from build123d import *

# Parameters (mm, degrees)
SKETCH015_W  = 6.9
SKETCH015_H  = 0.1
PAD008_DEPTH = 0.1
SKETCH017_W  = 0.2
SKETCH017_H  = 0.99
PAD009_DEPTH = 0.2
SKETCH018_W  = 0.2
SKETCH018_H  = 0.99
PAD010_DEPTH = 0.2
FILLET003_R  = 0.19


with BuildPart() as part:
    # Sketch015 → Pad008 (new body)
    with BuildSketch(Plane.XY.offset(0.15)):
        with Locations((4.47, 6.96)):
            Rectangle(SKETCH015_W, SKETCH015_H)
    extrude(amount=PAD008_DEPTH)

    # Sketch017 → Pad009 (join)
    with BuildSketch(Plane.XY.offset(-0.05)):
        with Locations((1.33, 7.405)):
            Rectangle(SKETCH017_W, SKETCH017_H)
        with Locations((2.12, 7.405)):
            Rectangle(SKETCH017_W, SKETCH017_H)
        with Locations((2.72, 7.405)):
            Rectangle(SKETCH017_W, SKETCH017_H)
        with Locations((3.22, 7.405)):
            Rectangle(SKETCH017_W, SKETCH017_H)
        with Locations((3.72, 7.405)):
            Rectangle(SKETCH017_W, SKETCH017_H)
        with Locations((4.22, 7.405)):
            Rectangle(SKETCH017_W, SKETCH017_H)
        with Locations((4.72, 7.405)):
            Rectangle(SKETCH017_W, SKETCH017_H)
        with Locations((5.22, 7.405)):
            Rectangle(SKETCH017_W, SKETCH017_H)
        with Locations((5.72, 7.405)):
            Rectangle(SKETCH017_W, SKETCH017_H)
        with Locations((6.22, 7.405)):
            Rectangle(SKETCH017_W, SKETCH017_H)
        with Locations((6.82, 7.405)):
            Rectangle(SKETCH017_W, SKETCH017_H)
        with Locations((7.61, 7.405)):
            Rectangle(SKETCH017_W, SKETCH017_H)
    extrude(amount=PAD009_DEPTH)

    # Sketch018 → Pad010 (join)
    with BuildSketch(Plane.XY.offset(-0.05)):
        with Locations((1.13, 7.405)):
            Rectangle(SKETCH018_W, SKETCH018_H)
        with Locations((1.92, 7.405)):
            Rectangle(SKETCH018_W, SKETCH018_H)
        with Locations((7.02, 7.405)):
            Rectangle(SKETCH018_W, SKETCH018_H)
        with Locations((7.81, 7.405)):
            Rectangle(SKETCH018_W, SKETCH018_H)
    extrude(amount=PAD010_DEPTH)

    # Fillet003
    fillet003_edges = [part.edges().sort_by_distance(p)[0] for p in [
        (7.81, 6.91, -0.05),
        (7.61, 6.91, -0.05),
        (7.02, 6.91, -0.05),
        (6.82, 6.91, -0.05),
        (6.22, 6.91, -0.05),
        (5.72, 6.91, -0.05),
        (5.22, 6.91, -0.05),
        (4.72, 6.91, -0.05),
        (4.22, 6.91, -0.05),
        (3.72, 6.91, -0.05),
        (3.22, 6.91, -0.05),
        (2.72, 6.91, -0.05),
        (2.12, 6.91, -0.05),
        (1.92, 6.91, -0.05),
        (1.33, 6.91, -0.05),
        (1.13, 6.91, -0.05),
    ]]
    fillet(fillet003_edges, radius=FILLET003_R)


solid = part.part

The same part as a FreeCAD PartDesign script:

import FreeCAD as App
import Part
import Sketcher
from FreeCAD import Vector
Q = App.Units.Quantity


def edges_at(feature, points):
    """Names of the edges that pass closest to the given points."""
    edges = feature.Shape.Edges
    near = lambda p: min(range(len(edges)), key=lambda i: edges[i].distToShape(Part.Vertex(*p))[0])
    return sorted({f"Edge{near(p) + 1}" for p in points})

doc = App.newDocument("Part")
body = doc.addObject("PartDesign::Body", "Body")

sketch1 = body.newObject("Sketcher::SketchObject", "Sketch")
sketch1.AttachmentSupport = (doc.getObject("XY_Plane"), [""])
sketch1.MapMode = "FlatFace"
sketch1.AttachmentOffset = App.Placement(Vector(0, 0, 0.15), App.Rotation())
sketch1.addGeometry(Part.LineSegment(Vector(1.02, 7.01, 0), Vector(1.02, 6.91, 0)), False)
sketch1.addGeometry(Part.LineSegment(Vector(1.02, 6.91, 0), Vector(7.92, 6.91, 0)), False)
sketch1.addGeometry(Part.LineSegment(Vector(7.92, 6.91, 0), Vector(7.92, 7.01, 0)), False)
sketch1.addGeometry(Part.LineSegment(Vector(7.92, 7.01, 0), Vector(1.02, 7.01, 0)), False)
sketch1.addConstraint(Sketcher.Constraint("Coincident", 0, 2, 1, 1))
sketch1.addConstraint(Sketcher.Constraint("Coincident", 1, 2, 2, 1))
sketch1.addConstraint(Sketcher.Constraint("Coincident", 2, 2, 3, 1))
sketch1.addConstraint(Sketcher.Constraint("Coincident", 3, 2, 0, 1))
sketch1.addConstraint(Sketcher.Constraint("Vertical", 0))
sketch1.addConstraint(Sketcher.Constraint("Horizontal", 1))
sketch1.addConstraint(Sketcher.Constraint("Vertical", 2))
sketch1.addConstraint(Sketcher.Constraint("Horizontal", 3))
sketch1.addConstraint(Sketcher.Constraint("DistanceX", 1, 1, 1, 2, Q("6.9 mm")))
sketch1.addConstraint(Sketcher.Constraint("DistanceY", 0, 2, 0, 1, Q("0.1 mm")))
sketch1.addConstraint(Sketcher.Constraint("DistanceX", -1, 1, 0, 2, Q("1.02 mm")))
sketch1.addConstraint(Sketcher.Constraint("DistanceY", -1, 1, 0, 2, Q("6.91 mm")))
pad1 = body.newObject("PartDesign::Pad", "Pad")
pad1.Profile = sketch1
pad1.Length = 0.1

sketch2 = body.newObject("Sketcher::SketchObject", "Sketch001")
sketch2.AttachmentSupport = (doc.getObject("XY_Plane"), [""])
sketch2.MapMode = "FlatFace"
sketch2.AttachmentOffset = App.Placement(Vector(0, 0, -0.05), App.Rotation())
sketch2.addGeometry(Part.LineSegment(Vector(1.23, 7.9, 0), Vector(1.23, 6.91, 0)), False)
sketch2.addGeometry(Part.LineSegment(Vector(1.23, 6.91, 0), Vector(1.43, 6.91, 0)), False)
sketch2.addGeometry(Part.LineSegment(Vector(1.43, 6.91, 0), Vector(1.43, 7.9, 0)), False)
sketch2.addGeometry(Part.LineSegment(Vector(1.43, 7.9, 0), Vector(1.23, 7.9, 0)), False)
sketch2.addGeometry(Part.LineSegment(Vector(2.02, 7.9, 0), Vector(2.02, 6.91, 0)), False)
sketch2.addGeometry(Part.LineSegment(Vector(2.02, 6.91, 0), Vector(2.22, 6.91, 0)), False)
sketch2.addGeometry(Part.LineSegment(Vector(2.22, 6.91, 0), Vector(2.22, 7.9, 0)), False)
sketch2.addGeometry(Part.LineSegment(Vector(2.22, 7.9, 0), Vector(2.02, 7.9, 0)), False)
sketch2.addGeometry(Part.LineSegment(Vector(2.62, 7.9, 0), Vector(2.62, 6.91, 0)), False)
sketch2.addGeometry(Part.LineSegment(Vector(2.62, 6.91, 0), Vector(2.82, 6.91, 0)), False)
sketch2.addGeometry(Part.LineSegment(Vector(2.82, 6.91, 0), Vector(2.82, 7.9, 0)), False)
sketch2.addGeometry(Part.LineSegment(Vector(2.82, 7.9, 0), Vector(2.62, 7.9, 0)), False)
sketch2.addGeometry(Part.LineSegment(Vector(3.12, 7.9, 0), Vector(3.12, 6.91, 0)), False)
sketch2.addGeometry(Part.LineSegment(Vector(3.12, 6.91, 0), Vector(3.32, 6.91, 0)), False)
sketch2.addGeometry(Part.LineSegment(Vector(3.32, 6.91, 0), Vector(3.32, 7.9, 0)), False)
sketch2.addGeometry(Part.LineSegment(Vector(3.32, 7.9, 0), Vector(3.12, 7.9, 0)), False)
sketch2.addGeometry(Part.LineSegment(Vector(3.62, 7.9, 0), Vector(3.62, 6.91, 0)), False)
sketch2.addGeometry(Part.LineSegment(Vector(3.62, 6.91, 0), Vector(3.82, 6.91, 0)), False)
sketch2.addGeometry(Part.LineSegment(Vector(3.82, 6.91, 0), Vector(3.82, 7.9, 0)), False)
sketch2.addGeometry(Part.LineSegment(Vector(3.82, 7.9, 0), Vector(3.62, 7.9, 0)), False)
sketch2.addGeometry(Part.LineSegment(Vector(4.12, 7.9, 0), Vector(4.12, 6.91, 0)), False)
sketch2.addGeometry(Part.LineSegment(Vector(4.12, 6.91, 0), Vector(4.32, 6.91, 0)), False)
sketch2.addGeometry(Part.LineSegment(Vector(4.32, 6.91, 0), Vector(4.32, 7.9, 0)), False)
sketch2.addGeometry(Part.LineSegment(Vector(4.32, 7.9, 0), Vector(4.12, 7.9, 0)), False)
sketch2.addGeometry(Part.LineSegment(Vector(4.62, 7.9, 0), Vector(4.62, 6.91, 0)), False)
sketch2.addGeometry(Part.LineSegment(Vector(4.62, 6.91, 0), Vector(4.82, 6.91, 0)), False)
sketch2.addGeometry(Part.LineSegment(Vector(4.82, 6.91, 0), Vector(4.82, 7.9, 0)), False)
sketch2.addGeometry(Part.LineSegment(Vector(4.82, 7.9, 0), Vector(4.62, 7.9, 0)), False)
sketch2.addGeometry(Part.LineSegment(Vector(5.12, 7.9, 0), Vector(5.12, 6.91, 0)), False)
sketch2.addGeometry(Part.LineSegment(Vector(5.12, 6.91, 0), Vector(5.32, 6.91, 0)), False)
sketch2.addGeometry(Part.LineSegment(Vector(5.32, 6.91, 0), Vector(5.32, 7.9, 0)), False)
sketch2.addGeometry(Part.LineSegment(Vector(5.32, 7.9, 0), Vector(5.12, 7.9, 0)), False)
sketch2.addGeometry(Part.LineSegment(Vector(5.62, 7.9, 0), Vector(5.62, 6.91, 0)), False)
sketch2.addGeometry(Part.LineSegment(Vector(5.62, 6.91, 0), Vector(5.82, 6.91, 0)), False)
sketch2.addGeometry(Part.LineSegment(Vector(5.82, 6.91, 0), Vector(5.82, 7.9, 0)), False)
sketch2.addGeometry(Part.LineSegment(Vector(5.82, 7.9, 0), Vector(5.62, 7.9, 0)), False)
sketch2.addGeometry(Part.LineSegment(Vector(6.12, 7.9, 0), Vector(6.12, 6.91, 0)), False)
sketch2.addGeometry(Part.LineSegment(Vector(6.12, 6.91, 0), Vector(6.32, 6.91, 0)), False)
sketch2.addGeometry(Part.LineSegment(Vector(6.32, 6.91, 0), Vector(6.32, 7.9, 0)), False)
sketch2.addGeometry(Part.LineSegment(Vector(6.32, 7.9, 0), Vector(6.12, 7.9, 0)), False)
sketch2.addGeometry(Part.LineSegment(Vector(6.72, 7.9, 0), Vector(6.72, 6.91, 0)), False)
sketch2.addGeometry(Part.LineSegment(Vector(6.72, 6.91, 0), Vector(6.92, 6.91, 0)), False)
sketch2.addGeometry(Part.LineSegment(Vector(6.92, 6.91, 0), Vector(6.92, 7.9, 0)), False)
sketch2.addGeometry(Part.LineSegment(Vector(6.92, 7.9, 0), Vector(6.72, 7.9, 0)), False)
sketch2.addGeometry(Part.LineSegment(Vector(7.51, 7.9, 0), Vector(7.51, 6.91, 0)), False)
sketch2.addGeometry(Part.LineSegment(Vector(7.51, 6.91, 0), Vector(7.71, 6.91, 0)), False)
sketch2.addGeometry(Part.LineSegment(Vector(7.71, 6.91, 0), Vector(7.71, 7.9, 0)), False)
sketch2.addGeometry(Part.LineSegment(Vector(7.71, 7.9, 0), Vector(7.51, 7.9, 0)), False)
sketch2.addConstraint(Sketcher.Constraint("Coincident", 0, 2, 1, 1))
sketch2.addConstraint(Sketcher.Constraint("Coincident", 1, 2, 2, 1))
sketch2.addConstraint(Sketcher.Constraint("Coincident", 2, 2, 3, 1))
sketch2.addConstraint(Sketcher.Constraint("Coincident", 3, 2, 0, 1))
sketch2.addConstraint(Sketcher.Constraint("Coincident", 4, 2, 5, 1))
sketch2.addConstraint(Sketcher.Constraint("Coincident", 5, 2, 6, 1))
sketch2.addConstraint(Sketcher.Constraint("Coincident", 6, 2, 7, 1))
sketch2.addConstraint(Sketcher.Constraint("Coincident", 7, 2, 4, 1))
sketch2.addConstraint(Sketcher.Constraint("Coincident", 8, 2, 9, 1))
sketch2.addConstraint(Sketcher.Constraint("Coincident", 9, 2, 10, 1))
sketch2.addConstraint(Sketcher.Constraint("Coincident", 10, 2, 11, 1))
sketch2.addConstraint(Sketcher.Constraint("Coincident", 11, 2, 8, 1))
sketch2.addConstraint(Sketcher.Constraint("Coincident", 12, 2, 13, 1))
sketch2.addConstraint(Sketcher.Constraint("Coincident", 13, 2, 14, 1))
sketch2.addConstraint(Sketcher.Constraint("Coincident", 14, 2, 15, 1))
sketch2.addConstraint(Sketcher.Constraint("Coincident", 15, 2, 12, 1))
sketch2.addConstraint(Sketcher.Constraint("Coincident", 16, 2, 17, 1))
sketch2.addConstraint(Sketcher.Constraint("Coincident", 17, 2, 18, 1))
sketch2.addConstraint(Sketcher.Constraint("Coincident", 18, 2, 19, 1))
sketch2.addConstraint(Sketcher.Constraint("Coincident", 19, 2, 16, 1))
sketch2.addConstraint(Sketcher.Constraint("Coincident", 20, 2, 21, 1))
sketch2.addConstraint(Sketcher.Constraint("Coincident", 21, 2, 22, 1))
sketch2.addConstraint(Sketcher.Constraint("Coincident", 22, 2, 23, 1))
sketch2.addConstraint(Sketcher.Constraint("Coincident", 23, 2, 20, 1))
sketch2.addConstraint(Sketcher.Constraint("Coincident", 24, 2, 25, 1))
sketch2.addConstraint(Sketcher.Constraint("Coincident", 25, 2, 26, 1))
sketch2.addConstraint(Sketcher.Constraint("Coincident", 26, 2, 27, 1))
sketch2.addConstraint(Sketcher.Constraint("Coincident", 27, 2, 24, 1))
sketch2.addConstraint(Sketcher.Constraint("Coincident", 28, 2, 29, 1))
sketch2.addConstraint(Sketcher.Constraint("Coincident", 29, 2, 30, 1))
sketch2.addConstraint(Sketcher.Constraint("Coincident", 30, 2, 31, 1))
sketch2.addConstraint(Sketcher.Constraint("Coincident", 31, 2, 28, 1))
sketch2.addConstraint(Sketcher.Constraint("Coincident", 32, 2, 33, 1))
sketch2.addConstraint(Sketcher.Constraint("Coincident", 33, 2, 34, 1))
sketch2.addConstraint(Sketcher.Constraint("Coincident", 34, 2, 35, 1))
sketch2.addConstraint(Sketcher.Constraint("Coincident", 35, 2, 32, 1))
sketch2.addConstraint(Sketcher.Constraint("Coincident", 36, 2, 37, 1))
sketch2.addConstraint(Sketcher.Constraint("Coincident", 37, 2, 38, 1))
sketch2.addConstraint(Sketcher.Constraint("Coincident", 38, 2, 39, 1))
sketch2.addConstraint(Sketcher.Constraint("Coincident", 39, 2, 36, 1))
sketch2.addConstraint(Sketcher.Constraint("Coincident", 40, 2, 41, 1))
sketch2.addConstraint(Sketcher.Constraint("Coincident", 41, 2, 42, 1))
sketch2.addConstraint(Sketcher.Constraint("Coincident", 42, 2, 43, 1))
sketch2.addConstraint(Sketcher.Constraint("Coincident", 43, 2, 40, 1))
sketch2.addConstraint(Sketcher.Constraint("Coincident", 44, 2, 45, 1))
sketch2.addConstraint(Sketcher.Constraint("Coincident", 45, 2, 46, 1))
sketch2.addConstraint(Sketcher.Constraint("Coincident", 46, 2, 47, 1))
sketch2.addConstraint(Sketcher.Constraint("Coincident", 47, 2, 44, 1))
sketch2.addConstraint(Sketcher.Constraint("Vertical", 0))
sketch2.addConstraint(Sketcher.Constraint("Horizontal", 1))
sketch2.addConstraint(Sketcher.Constraint("Vertical", 2))
sketch2.addConstraint(Sketcher.Constraint("Horizontal", 3))
sketch2.addConstraint(Sketcher.Constraint("Vertical", 4))
sketch2.addConstraint(Sketcher.Constraint("Horizontal", 5))
sketch2.addConstraint(Sketcher.Constraint("Vertical", 6))
sketch2.addConstraint(Sketcher.Constraint("Horizontal", 7))
sketch2.addConstraint(Sketcher.Constraint("Vertical", 8))
sketch2.addConstraint(Sketcher.Constraint("Horizontal", 9))
sketch2.addConstraint(Sketcher.Constraint("Vertical", 10))
sketch2.addConstraint(Sketcher.Constraint("Horizontal", 11))
sketch2.addConstraint(Sketcher.Constraint("Vertical", 12))
sketch2.addConstraint(Sketcher.Constraint("Horizontal", 13))
sketch2.addConstraint(Sketcher.Constraint("Vertical", 14))
sketch2.addConstraint(Sketcher.Constraint("Horizontal", 15))
sketch2.addConstraint(Sketcher.Constraint("Vertical", 16))
sketch2.addConstraint(Sketcher.Constraint("Horizontal", 17))
sketch2.addConstraint(Sketcher.Constraint("Vertical", 18))
sketch2.addConstraint(Sketcher.Constraint("Horizontal", 19))
sketch2.addConstraint(Sketcher.Constraint("Vertical", 20))
sketch2.addConstraint(Sketcher.Constraint("Horizontal", 21))
sketch2.addConstraint(Sketcher.Constraint("Vertical", 22))
sketch2.addConstraint(Sketcher.Constraint("Horizontal", 23))
sketch2.addConstraint(Sketcher.Constraint("Vertical", 24))
sketch2.addConstraint(Sketcher.Constraint("Horizontal", 25))
sketch2.addConstraint(Sketcher.Constraint("Vertical", 26))
sketch2.addConstraint(Sketcher.Constraint("Horizontal", 27))
sketch2.addConstraint(Sketcher.Constraint("Vertical", 28))
sketch2.addConstraint(Sketcher.Constraint("Horizontal", 29))
sketch2.addConstraint(Sketcher.Constraint("Vertical", 30))
sketch2.addConstraint(Sketcher.Constraint("Horizontal", 31))
sketch2.addConstraint(Sketcher.Constraint("Vertical", 32))
sketch2.addConstraint(Sketcher.Constraint("Horizontal", 33))
sketch2.addConstraint(Sketcher.Constraint("Vertical", 34))
sketch2.addConstraint(Sketcher.Constraint("Horizontal", 35))
sketch2.addConstraint(Sketcher.Constraint("Vertical", 36))
sketch2.addConstraint(Sketcher.Constraint("Horizontal", 37))
sketch2.addConstraint(Sketcher.Constraint("Vertical", 38))
sketch2.addConstraint(Sketcher.Constraint("Horizontal", 39))
sketch2.addConstraint(Sketcher.Constraint("Vertical", 40))
sketch2.addConstraint(Sketcher.Constraint("Horizontal", 41))
sketch2.addConstraint(Sketcher.Constraint("Vertical", 42))
sketch2.addConstraint(Sketcher.Constraint("Horizontal", 43))
sketch2.addConstraint(Sketcher.Constraint("Vertical", 44))
sketch2.addConstraint(Sketcher.Constraint("Horizontal", 45))
sketch2.addConstraint(Sketcher.Constraint("Vertical", 46))
sketch2.addConstraint(Sketcher.Constraint("Horizontal", 47))
sketch2.addConstraint(Sketcher.Constraint("Horizontal", 1, 2, 4, 2))
sketch2.addConstraint(Sketcher.Constraint("Horizontal", 3, 2, 6, 2))
sketch2.addConstraint(Sketcher.Constraint("Horizontal", 5, 2, 8, 2))
sketch2.addConstraint(Sketcher.Constraint("Horizontal", 7, 2, 10, 2))
sketch2.addConstraint(Sketcher.Constraint("Horizontal", 9, 2, 12, 2))
sketch2.addConstraint(Sketcher.Constraint("Horizontal", 11, 2, 14, 2))
sketch2.addConstraint(Sketcher.Constraint("Horizontal", 13, 2, 16, 2))
sketch2.addConstraint(Sketcher.Constraint("Horizontal", 15, 2, 18, 2))
sketch2.addConstraint(Sketcher.Constraint("Horizontal", 17, 2, 20, 2))
sketch2.addConstraint(Sketcher.Constraint("Horizontal", 19, 2, 22, 2))
sketch2.addConstraint(Sketcher.Constraint("Horizontal", 21, 2, 24, 2))
sketch2.addConstraint(Sketcher.Constraint("Horizontal", 23, 2, 26, 2))
sketch2.addConstraint(Sketcher.Constraint("Horizontal", 25, 2, 28, 2))
sketch2.addConstraint(Sketcher.Constraint("Horizontal", 27, 2, 30, 2))
sketch2.addConstraint(Sketcher.Constraint("Horizontal", 29, 2, 32, 2))
sketch2.addConstraint(Sketcher.Constraint("Horizontal", 31, 2, 34, 2))
sketch2.addConstraint(Sketcher.Constraint("Horizontal", 33, 2, 36, 2))
sketch2.addConstraint(Sketcher.Constraint("Horizontal", 35, 2, 38, 2))
sketch2.addConstraint(Sketcher.Constraint("Horizontal", 37, 2, 40, 2))
sketch2.addConstraint(Sketcher.Constraint("Horizontal", 39, 2, 42, 2))
sketch2.addConstraint(Sketcher.Constraint("Horizontal", 41, 2, 44, 2))
sketch2.addConstraint(Sketcher.Constraint("Horizontal", 43, 2, 46, 2))
sketch2.addConstraint(Sketcher.Constraint("Equal", 3, 5))
sketch2.addConstraint(Sketcher.Constraint("Equal", 7, 9))
sketch2.addConstraint(Sketcher.Constraint("Equal", 11, 13))
sketch2.addConstraint(Sketcher.Constraint("Equal", 15, 17))
sketch2.addConstraint(Sketcher.Constraint("Equal", 19, 21))
sketch2.addConstraint(Sketcher.Constraint("Equal", 23, 25))
sketch2.addConstraint(Sketcher.Constraint("Equal", 27, 29))
sketch2.addConstraint(Sketcher.Constraint("Equal", 31, 33))
sketch2.addConstraint(Sketcher.Constraint("Equal", 35, 37))
sketch2.addConstraint(Sketcher.Constraint("Equal", 39, 41))
sketch2.addConstraint(Sketcher.Constraint("Equal", 43, 45))
sketch2.addConstraint(Sketcher.Constraint("DistanceX", 1, 1, 1, 2, Q("0.2 mm")))
sketch2.addConstraint(Sketcher.Constraint("DistanceX", 8, 2, 16, 2, Q("1 mm")))
sketch2.addConstraint(Sketcher.Constraint("DistanceX", 12, 2, 20, 2, Q("1 mm")))
sketch2.addConstraint(Sketcher.Constraint("DistanceX", 16, 2, 24, 2, Q("1 mm")))
sketch2.addConstraint(Sketcher.Constraint("DistanceX", 20, 2, 28, 2, Q("1 mm")))
sketch2.addConstraint(Sketcher.Constraint("DistanceX", 24, 2, 32, 2, Q("1 mm")))
sketch2.addConstraint(Sketcher.Constraint("DistanceX", 28, 2, 36, 2, Q("1 mm")))
sketch2.addConstraint(Sketcher.Constraint("DistanceY", 0, 2, 0, 1, Q("0.99 mm")))
sketch2.addConstraint(Sketcher.Constraint("DistanceY", -1, 1, 2, 2, Q("7.9 mm")))
sketch2.addConstraint(Sketcher.Constraint("DistanceX", 5, 2, 8, 2, Q("0.4 mm")))
sketch2.addConstraint(Sketcher.Constraint("DistanceX", 9, 2, 12, 2, Q("0.3 mm")))
sketch2.addConstraint(Sketcher.Constraint("DistanceX", 37, 2, 40, 2, Q("0.4 mm")))
sketch2.addConstraint(Sketcher.Constraint("DistanceX", -1, 1, 0, 2, Q("1.23 mm")))
sketch2.addConstraint(Sketcher.Constraint("DistanceX", -1, 1, 4, 2, Q("2.02 mm")))
sketch2.addConstraint(Sketcher.Constraint("DistanceX", -1, 1, 44, 2, Q("7.51 mm")))
pad2 = body.newObject("PartDesign::Pad", "Pad001")
pad2.Profile = sketch2
pad2.Length = 0.2

sketch3 = body.newObject("Sketcher::SketchObject", "Sketch002")
sketch3.AttachmentSupport = (doc.getObject("XY_Plane"), [""])
sketch3.MapMode = "FlatFace"
sketch3.AttachmentOffset = App.Placement(Vector(0, 0, -0.05), App.Rotation())
sketch3.addGeometry(Part.LineSegment(Vector(1.03, 7.9, 0), Vector(1.03, 6.91, 0)), False)
sketch3.addGeometry(Part.LineSegment(Vector(1.03, 6.91, 0), Vector(1.23, 6.91, 0)), False)
sketch3.addGeometry(Part.LineSegment(Vector(1.23, 6.91, 0), Vector(1.23, 7.9, 0)), False)
sketch3.addGeometry(Part.LineSegment(Vector(1.23, 7.9, 0), Vector(1.03, 7.9, 0)), False)
sketch3.addGeometry(Part.LineSegment(Vector(1.82, 7.9, 0), Vector(1.82, 6.91, 0)), False)
sketch3.addGeometry(Part.LineSegment(Vector(1.82, 6.91, 0), Vector(2.02, 6.91, 0)), False)
sketch3.addGeometry(Part.LineSegment(Vector(2.02, 6.91, 0), Vector(2.02, 7.9, 0)), False)
sketch3.addGeometry(Part.LineSegment(Vector(2.02, 7.9, 0), Vector(1.82, 7.9, 0)), False)
sketch3.addGeometry(Part.LineSegment(Vector(6.92, 7.9, 0), Vector(6.92, 6.91, 0)), False)
sketch3.addGeometry(Part.LineSegment(Vector(6.92, 6.91, 0), Vector(7.12, 6.91, 0)), False)
sketch3.addGeometry(Part.LineSegment(Vector(7.12, 6.91, 0), Vector(7.12, 7.9, 0)), False)
sketch3.addGeometry(Part.LineSegment(Vector(7.12, 7.9, 0), Vector(6.92, 7.9, 0)), False)
sketch3.addGeometry(Part.LineSegment(Vector(7.71, 7.9, 0), Vector(7.71, 6.91, 0)), False)
sketch3.addGeometry(Part.LineSegment(Vector(7.71, 6.91, 0), Vector(7.91, 6.91, 0)), False)
sketch3.addGeometry(Part.LineSegment(Vector(7.91, 6.91, 0), Vector(7.91, 7.9, 0)), False)
sketch3.addGeometry(Part.LineSegment(Vector(7.91, 7.9, 0), Vector(7.71, 7.9, 0)), False)
sketch3.addConstraint(Sketcher.Constraint("Coincident", 0, 2, 1, 1))
sketch3.addConstraint(Sketcher.Constraint("Coincident", 1, 2, 2, 1))
sketch3.addConstraint(Sketcher.Constraint("Coincident", 2, 2, 3, 1))
sketch3.addConstraint(Sketcher.Constraint("Coincident", 3, 2, 0, 1))
sketch3.addConstraint(Sketcher.Constraint("Coincident", 4, 2, 5, 1))
sketch3.addConstraint(Sketcher.Constraint("Coincident", 5, 2, 6, 1))
sketch3.addConstraint(Sketcher.Constraint("Coincident", 6, 2, 7, 1))
sketch3.addConstraint(Sketcher.Constraint("Coincident", 7, 2, 4, 1))
sketch3.addConstraint(Sketcher.Constraint("Coincident", 8, 2, 9, 1))
sketch3.addConstraint(Sketcher.Constraint("Coincident", 9, 2, 10, 1))
sketch3.addConstraint(Sketcher.Constraint("Coincident", 10, 2, 11, 1))
sketch3.addConstraint(Sketcher.Constraint("Coincident", 11, 2, 8, 1))
sketch3.addConstraint(Sketcher.Constraint("Coincident", 12, 2, 13, 1))
sketch3.addConstraint(Sketcher.Constraint("Coincident", 13, 2, 14, 1))
sketch3.addConstraint(Sketcher.Constraint("Coincident", 14, 2, 15, 1))
sketch3.addConstraint(Sketcher.Constraint("Coincident", 15, 2, 12, 1))
sketch3.addConstraint(Sketcher.Constraint("Vertical", 0))
sketch3.addConstraint(Sketcher.Constraint("Horizontal", 1))
sketch3.addConstraint(Sketcher.Constraint("Vertical", 2))
sketch3.addConstraint(Sketcher.Constraint("Horizontal", 3))
sketch3.addConstraint(Sketcher.Constraint("Vertical", 4))
sketch3.addConstraint(Sketcher.Constraint("Horizontal", 5))
sketch3.addConstraint(Sketcher.Constraint("Vertical", 6))
sketch3.addConstraint(Sketcher.Constraint("Horizontal", 7))
sketch3.addConstraint(Sketcher.Constraint("Vertical", 8))
sketch3.addConstraint(Sketcher.Constraint("Horizontal", 9))
sketch3.addConstraint(Sketcher.Constraint("Vertical", 10))
sketch3.addConstraint(Sketcher.Constraint("Horizontal", 11))
sketch3.addConstraint(Sketcher.Constraint("Vertical", 12))
sketch3.addConstraint(Sketcher.Constraint("Horizontal", 13))
sketch3.addConstraint(Sketcher.Constraint("Vertical", 14))
sketch3.addConstraint(Sketcher.Constraint("Horizontal", 15))
sketch3.addConstraint(Sketcher.Constraint("Horizontal", 1, 2, 4, 2))
sketch3.addConstraint(Sketcher.Constraint("Horizontal", 3, 2, 6, 2))
sketch3.addConstraint(Sketcher.Constraint("Horizontal", 5, 2, 8, 2))
sketch3.addConstraint(Sketcher.Constraint("Horizontal", 7, 2, 10, 2))
sketch3.addConstraint(Sketcher.Constraint("Horizontal", 9, 2, 12, 2))
sketch3.addConstraint(Sketcher.Constraint("Horizontal", 11, 2, 14, 2))
sketch3.addConstraint(Sketcher.Constraint("Equal", 3, 5))
sketch3.addConstraint(Sketcher.Constraint("Equal", 7, 9))
sketch3.addConstraint(Sketcher.Constraint("Equal", 11, 13))
sketch3.addConstraint(Sketcher.Constraint("DistanceX", 1, 1, 1, 2, Q("0.2 mm")))
sketch3.addConstraint(Sketcher.Constraint("DistanceY", 0, 2, 0, 1, Q("0.99 mm")))
sketch3.addConstraint(Sketcher.Constraint("DistanceY", -1, 1, 2, 2, Q("7.9 mm")))
sketch3.addConstraint(Sketcher.Constraint("DistanceX", 5, 2, 8, 2, Q("4.9 mm")))
sketch3.addConstraint(Sketcher.Constraint("DistanceX", -1, 1, 0, 2, Q("1.03 mm")))
sketch3.addConstraint(Sketcher.Constraint("DistanceX", -1, 1, 4, 2, Q("1.82 mm")))
sketch3.addConstraint(Sketcher.Constraint("DistanceX", -1, 1, 12, 2, Q("7.71 mm")))
pad3 = body.newObject("PartDesign::Pad", "Pad002")
pad3.Profile = sketch3
pad3.Length = 0.2
doc.recompute()

fillet = body.newObject("PartDesign::Fillet", "Fillet")
fillet.Base = (pad3, edges_at(pad3, [
    (7.71, 6.91, -0.05),
    (7.71, 6.91, -0.05),
    (6.92, 6.91, -0.05),
    (6.92, 6.91, -0.05),
    (6.22, 6.91, -0.05),
    (5.72, 6.91, -0.05),
    (5.22, 6.91, -0.05),
    (4.72, 6.91, -0.05),
    (4.22, 6.91, -0.05),
    (3.72, 6.91, -0.05),
    (3.22, 6.91, -0.05),
    (2.72, 6.91, -0.05),
    (2.02, 6.91, -0.05),
    (2.02, 6.91, -0.05),
    (1.23, 6.91, -0.05),
    (1.23, 6.91, -0.05),
]))
fillet.Radius = 0.19

doc.recompute()
